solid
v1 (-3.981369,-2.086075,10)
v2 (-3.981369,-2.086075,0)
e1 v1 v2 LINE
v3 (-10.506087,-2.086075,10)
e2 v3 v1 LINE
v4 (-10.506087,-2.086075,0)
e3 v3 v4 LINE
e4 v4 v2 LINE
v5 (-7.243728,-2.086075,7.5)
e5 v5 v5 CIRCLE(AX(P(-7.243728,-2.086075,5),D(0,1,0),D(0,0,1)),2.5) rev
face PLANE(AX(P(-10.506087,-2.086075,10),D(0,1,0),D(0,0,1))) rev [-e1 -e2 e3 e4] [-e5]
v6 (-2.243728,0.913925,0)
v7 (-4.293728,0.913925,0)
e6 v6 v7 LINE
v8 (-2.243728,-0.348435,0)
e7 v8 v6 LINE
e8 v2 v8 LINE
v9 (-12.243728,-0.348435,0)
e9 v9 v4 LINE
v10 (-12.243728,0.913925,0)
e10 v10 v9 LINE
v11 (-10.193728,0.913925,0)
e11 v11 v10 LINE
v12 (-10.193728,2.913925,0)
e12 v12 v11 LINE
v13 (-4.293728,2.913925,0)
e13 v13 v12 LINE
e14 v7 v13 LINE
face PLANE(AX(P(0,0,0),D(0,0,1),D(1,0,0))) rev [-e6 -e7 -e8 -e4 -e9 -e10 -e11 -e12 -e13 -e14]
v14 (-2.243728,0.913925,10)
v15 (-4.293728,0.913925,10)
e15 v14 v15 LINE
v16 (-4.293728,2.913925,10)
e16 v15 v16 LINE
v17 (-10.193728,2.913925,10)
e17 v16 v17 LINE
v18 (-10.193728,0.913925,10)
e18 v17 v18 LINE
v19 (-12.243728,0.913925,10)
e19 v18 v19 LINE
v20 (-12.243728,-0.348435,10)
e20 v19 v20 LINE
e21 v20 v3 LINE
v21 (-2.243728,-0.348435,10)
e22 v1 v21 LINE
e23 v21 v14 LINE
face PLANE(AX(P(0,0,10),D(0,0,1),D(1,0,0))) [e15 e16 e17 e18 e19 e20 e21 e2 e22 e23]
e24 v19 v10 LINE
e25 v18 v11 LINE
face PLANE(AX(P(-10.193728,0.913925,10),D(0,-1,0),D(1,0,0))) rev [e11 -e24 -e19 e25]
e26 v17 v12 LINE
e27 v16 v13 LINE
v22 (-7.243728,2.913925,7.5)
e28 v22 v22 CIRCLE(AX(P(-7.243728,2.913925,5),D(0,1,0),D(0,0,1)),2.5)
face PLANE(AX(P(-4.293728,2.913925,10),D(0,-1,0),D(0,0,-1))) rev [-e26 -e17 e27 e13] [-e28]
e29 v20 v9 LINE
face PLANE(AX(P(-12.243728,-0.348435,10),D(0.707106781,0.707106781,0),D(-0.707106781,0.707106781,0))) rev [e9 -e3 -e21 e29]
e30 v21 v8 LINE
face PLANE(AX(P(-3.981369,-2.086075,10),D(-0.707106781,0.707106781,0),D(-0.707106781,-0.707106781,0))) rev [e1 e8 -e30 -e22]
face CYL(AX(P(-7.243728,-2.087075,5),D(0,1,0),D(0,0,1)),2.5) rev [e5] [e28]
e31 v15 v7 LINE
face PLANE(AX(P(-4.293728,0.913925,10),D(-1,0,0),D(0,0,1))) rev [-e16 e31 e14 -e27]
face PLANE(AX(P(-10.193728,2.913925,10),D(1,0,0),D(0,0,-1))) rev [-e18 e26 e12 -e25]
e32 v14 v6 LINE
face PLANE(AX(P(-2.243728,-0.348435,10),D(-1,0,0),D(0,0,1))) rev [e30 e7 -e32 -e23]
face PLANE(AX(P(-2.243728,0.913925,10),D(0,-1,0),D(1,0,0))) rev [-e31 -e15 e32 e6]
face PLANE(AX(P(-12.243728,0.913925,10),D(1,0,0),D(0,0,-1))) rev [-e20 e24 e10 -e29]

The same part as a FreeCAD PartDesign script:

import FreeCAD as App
import Part
import Sketcher


def add_polygon(sketch, points):
    """Adds a closed chain of lines whose ends are joined by coincident constraints."""
    first, n = sketch.GeometryCount, len(points)
    for a, b in zip(points, points[1:] + points[:1]):
        sketch.addGeometry(Part.LineSegment(App.Vector(*a, 0), App.Vector(*b, 0)), False)
    for i in range(n):
        sketch.addConstraint(Sketcher.Constraint("Coincident", first + i, 2, first + (i + 1) % n, 1))

doc = App.newDocument("Part")
body = doc.addObject("PartDesign::Body", "Body")

# Sketch on XY plane
sketch1 = body.newObject("Sketcher::SketchObject", "Sketch")
sketch1.AttachmentSupport = (doc.getObject("XY_Plane"), [""])
sketch1.MapMode = "FlatFace"
add_polygon(sketch1, [(-10.5, -2.1), (-4, -2.1), (-2.2, -0.3), (-2.2, 0.9), (-4.3, 0.9), (-4.3, 2.9), (-10.2, 2.9), (-10.2, 0.9), (-12.2, 0.9), (-12.2, -0.3)])  # lines 0-9
sketch1.addConstraint([
    Sketcher.Constraint("Horizontal", 0),
    Sketcher.Constraint("Vertical", 2),
    Sketcher.Constraint("Horizontal", 3),
    Sketcher.Constraint("Vertical", 4),
    Sketcher.Constraint("Horizontal", 5),
    Sketcher.Constraint("Vertical", 6),
    Sketcher.Constraint("Horizontal", 7),
    Sketcher.Constraint("Vertical", 8),
    Sketcher.Constraint("Perpendicular", 1, 9),
    Sketcher.Constraint("Horizontal", 3, 2, 6, 2),
    Sketcher.Constraint("Horizontal", 1, 2, 8, 2),
    Sketcher.Constraint("Equal", 3, 7),
    Sketcher.Constraint("Equal", 1, 9),
    Sketcher.Constraint("DistanceY", 4, 1, 4, 2, 2.0),
    Sketcher.Constraint("DistanceX", 5, 2, 5, 1, 5.9),
    Sketcher.Constraint("DistanceY", 0, 2, 2, 2, 3.0),
    Sketcher.Constraint("DistanceX", 3, 2, 3, 1, 2.05),
    Sketcher.Constraint("DistanceX", 0, 1, 0, 2, 6.524718),
    Sketcher.Constraint("DistanceX", 0, 2, -1, 1, 3.981369),
    Sketcher.Constraint("DistanceY", 0, 2, -1, 1, 2.086075),
])
pad1 = body.newObject("PartDesign::Pad", "Pad")
pad1.Profile = sketch1
pad1.Length = 10

# Sketch on XZ plane
sketch2 = body.newObject("Sketcher::SketchObject", "Sketch001")
sketch2.AttachmentSupport = (doc.getObject("XZ_Plane"), [""])
sketch2.MapMode = "FlatFace"
sketch2.AttachmentOffset = App.Placement(App.Vector(0, 0, -2.913925), App.Rotation())
sketch2.addGeometry(Part.Circle(App.Vector(-7.2, 5, 0), App.Vector(0, 0, 1), 2.5), False)
sketch2.addConstraint([
    Sketcher.Constraint("Diameter", 0, 5.0),
    Sketcher.Constraint("DistanceY", -1, 1, 0, 3, 5.0),
    Sketcher.Constraint("DistanceX", 0, 3, -1, 1, 7.243728),
])
pocket1 = body.newObject("PartDesign::Pocket", "Pocket")
pocket1.Profile = sketch2
pocket1.Type = "UpToFirst"
pocket1.Reversed = True

doc.recompute()
